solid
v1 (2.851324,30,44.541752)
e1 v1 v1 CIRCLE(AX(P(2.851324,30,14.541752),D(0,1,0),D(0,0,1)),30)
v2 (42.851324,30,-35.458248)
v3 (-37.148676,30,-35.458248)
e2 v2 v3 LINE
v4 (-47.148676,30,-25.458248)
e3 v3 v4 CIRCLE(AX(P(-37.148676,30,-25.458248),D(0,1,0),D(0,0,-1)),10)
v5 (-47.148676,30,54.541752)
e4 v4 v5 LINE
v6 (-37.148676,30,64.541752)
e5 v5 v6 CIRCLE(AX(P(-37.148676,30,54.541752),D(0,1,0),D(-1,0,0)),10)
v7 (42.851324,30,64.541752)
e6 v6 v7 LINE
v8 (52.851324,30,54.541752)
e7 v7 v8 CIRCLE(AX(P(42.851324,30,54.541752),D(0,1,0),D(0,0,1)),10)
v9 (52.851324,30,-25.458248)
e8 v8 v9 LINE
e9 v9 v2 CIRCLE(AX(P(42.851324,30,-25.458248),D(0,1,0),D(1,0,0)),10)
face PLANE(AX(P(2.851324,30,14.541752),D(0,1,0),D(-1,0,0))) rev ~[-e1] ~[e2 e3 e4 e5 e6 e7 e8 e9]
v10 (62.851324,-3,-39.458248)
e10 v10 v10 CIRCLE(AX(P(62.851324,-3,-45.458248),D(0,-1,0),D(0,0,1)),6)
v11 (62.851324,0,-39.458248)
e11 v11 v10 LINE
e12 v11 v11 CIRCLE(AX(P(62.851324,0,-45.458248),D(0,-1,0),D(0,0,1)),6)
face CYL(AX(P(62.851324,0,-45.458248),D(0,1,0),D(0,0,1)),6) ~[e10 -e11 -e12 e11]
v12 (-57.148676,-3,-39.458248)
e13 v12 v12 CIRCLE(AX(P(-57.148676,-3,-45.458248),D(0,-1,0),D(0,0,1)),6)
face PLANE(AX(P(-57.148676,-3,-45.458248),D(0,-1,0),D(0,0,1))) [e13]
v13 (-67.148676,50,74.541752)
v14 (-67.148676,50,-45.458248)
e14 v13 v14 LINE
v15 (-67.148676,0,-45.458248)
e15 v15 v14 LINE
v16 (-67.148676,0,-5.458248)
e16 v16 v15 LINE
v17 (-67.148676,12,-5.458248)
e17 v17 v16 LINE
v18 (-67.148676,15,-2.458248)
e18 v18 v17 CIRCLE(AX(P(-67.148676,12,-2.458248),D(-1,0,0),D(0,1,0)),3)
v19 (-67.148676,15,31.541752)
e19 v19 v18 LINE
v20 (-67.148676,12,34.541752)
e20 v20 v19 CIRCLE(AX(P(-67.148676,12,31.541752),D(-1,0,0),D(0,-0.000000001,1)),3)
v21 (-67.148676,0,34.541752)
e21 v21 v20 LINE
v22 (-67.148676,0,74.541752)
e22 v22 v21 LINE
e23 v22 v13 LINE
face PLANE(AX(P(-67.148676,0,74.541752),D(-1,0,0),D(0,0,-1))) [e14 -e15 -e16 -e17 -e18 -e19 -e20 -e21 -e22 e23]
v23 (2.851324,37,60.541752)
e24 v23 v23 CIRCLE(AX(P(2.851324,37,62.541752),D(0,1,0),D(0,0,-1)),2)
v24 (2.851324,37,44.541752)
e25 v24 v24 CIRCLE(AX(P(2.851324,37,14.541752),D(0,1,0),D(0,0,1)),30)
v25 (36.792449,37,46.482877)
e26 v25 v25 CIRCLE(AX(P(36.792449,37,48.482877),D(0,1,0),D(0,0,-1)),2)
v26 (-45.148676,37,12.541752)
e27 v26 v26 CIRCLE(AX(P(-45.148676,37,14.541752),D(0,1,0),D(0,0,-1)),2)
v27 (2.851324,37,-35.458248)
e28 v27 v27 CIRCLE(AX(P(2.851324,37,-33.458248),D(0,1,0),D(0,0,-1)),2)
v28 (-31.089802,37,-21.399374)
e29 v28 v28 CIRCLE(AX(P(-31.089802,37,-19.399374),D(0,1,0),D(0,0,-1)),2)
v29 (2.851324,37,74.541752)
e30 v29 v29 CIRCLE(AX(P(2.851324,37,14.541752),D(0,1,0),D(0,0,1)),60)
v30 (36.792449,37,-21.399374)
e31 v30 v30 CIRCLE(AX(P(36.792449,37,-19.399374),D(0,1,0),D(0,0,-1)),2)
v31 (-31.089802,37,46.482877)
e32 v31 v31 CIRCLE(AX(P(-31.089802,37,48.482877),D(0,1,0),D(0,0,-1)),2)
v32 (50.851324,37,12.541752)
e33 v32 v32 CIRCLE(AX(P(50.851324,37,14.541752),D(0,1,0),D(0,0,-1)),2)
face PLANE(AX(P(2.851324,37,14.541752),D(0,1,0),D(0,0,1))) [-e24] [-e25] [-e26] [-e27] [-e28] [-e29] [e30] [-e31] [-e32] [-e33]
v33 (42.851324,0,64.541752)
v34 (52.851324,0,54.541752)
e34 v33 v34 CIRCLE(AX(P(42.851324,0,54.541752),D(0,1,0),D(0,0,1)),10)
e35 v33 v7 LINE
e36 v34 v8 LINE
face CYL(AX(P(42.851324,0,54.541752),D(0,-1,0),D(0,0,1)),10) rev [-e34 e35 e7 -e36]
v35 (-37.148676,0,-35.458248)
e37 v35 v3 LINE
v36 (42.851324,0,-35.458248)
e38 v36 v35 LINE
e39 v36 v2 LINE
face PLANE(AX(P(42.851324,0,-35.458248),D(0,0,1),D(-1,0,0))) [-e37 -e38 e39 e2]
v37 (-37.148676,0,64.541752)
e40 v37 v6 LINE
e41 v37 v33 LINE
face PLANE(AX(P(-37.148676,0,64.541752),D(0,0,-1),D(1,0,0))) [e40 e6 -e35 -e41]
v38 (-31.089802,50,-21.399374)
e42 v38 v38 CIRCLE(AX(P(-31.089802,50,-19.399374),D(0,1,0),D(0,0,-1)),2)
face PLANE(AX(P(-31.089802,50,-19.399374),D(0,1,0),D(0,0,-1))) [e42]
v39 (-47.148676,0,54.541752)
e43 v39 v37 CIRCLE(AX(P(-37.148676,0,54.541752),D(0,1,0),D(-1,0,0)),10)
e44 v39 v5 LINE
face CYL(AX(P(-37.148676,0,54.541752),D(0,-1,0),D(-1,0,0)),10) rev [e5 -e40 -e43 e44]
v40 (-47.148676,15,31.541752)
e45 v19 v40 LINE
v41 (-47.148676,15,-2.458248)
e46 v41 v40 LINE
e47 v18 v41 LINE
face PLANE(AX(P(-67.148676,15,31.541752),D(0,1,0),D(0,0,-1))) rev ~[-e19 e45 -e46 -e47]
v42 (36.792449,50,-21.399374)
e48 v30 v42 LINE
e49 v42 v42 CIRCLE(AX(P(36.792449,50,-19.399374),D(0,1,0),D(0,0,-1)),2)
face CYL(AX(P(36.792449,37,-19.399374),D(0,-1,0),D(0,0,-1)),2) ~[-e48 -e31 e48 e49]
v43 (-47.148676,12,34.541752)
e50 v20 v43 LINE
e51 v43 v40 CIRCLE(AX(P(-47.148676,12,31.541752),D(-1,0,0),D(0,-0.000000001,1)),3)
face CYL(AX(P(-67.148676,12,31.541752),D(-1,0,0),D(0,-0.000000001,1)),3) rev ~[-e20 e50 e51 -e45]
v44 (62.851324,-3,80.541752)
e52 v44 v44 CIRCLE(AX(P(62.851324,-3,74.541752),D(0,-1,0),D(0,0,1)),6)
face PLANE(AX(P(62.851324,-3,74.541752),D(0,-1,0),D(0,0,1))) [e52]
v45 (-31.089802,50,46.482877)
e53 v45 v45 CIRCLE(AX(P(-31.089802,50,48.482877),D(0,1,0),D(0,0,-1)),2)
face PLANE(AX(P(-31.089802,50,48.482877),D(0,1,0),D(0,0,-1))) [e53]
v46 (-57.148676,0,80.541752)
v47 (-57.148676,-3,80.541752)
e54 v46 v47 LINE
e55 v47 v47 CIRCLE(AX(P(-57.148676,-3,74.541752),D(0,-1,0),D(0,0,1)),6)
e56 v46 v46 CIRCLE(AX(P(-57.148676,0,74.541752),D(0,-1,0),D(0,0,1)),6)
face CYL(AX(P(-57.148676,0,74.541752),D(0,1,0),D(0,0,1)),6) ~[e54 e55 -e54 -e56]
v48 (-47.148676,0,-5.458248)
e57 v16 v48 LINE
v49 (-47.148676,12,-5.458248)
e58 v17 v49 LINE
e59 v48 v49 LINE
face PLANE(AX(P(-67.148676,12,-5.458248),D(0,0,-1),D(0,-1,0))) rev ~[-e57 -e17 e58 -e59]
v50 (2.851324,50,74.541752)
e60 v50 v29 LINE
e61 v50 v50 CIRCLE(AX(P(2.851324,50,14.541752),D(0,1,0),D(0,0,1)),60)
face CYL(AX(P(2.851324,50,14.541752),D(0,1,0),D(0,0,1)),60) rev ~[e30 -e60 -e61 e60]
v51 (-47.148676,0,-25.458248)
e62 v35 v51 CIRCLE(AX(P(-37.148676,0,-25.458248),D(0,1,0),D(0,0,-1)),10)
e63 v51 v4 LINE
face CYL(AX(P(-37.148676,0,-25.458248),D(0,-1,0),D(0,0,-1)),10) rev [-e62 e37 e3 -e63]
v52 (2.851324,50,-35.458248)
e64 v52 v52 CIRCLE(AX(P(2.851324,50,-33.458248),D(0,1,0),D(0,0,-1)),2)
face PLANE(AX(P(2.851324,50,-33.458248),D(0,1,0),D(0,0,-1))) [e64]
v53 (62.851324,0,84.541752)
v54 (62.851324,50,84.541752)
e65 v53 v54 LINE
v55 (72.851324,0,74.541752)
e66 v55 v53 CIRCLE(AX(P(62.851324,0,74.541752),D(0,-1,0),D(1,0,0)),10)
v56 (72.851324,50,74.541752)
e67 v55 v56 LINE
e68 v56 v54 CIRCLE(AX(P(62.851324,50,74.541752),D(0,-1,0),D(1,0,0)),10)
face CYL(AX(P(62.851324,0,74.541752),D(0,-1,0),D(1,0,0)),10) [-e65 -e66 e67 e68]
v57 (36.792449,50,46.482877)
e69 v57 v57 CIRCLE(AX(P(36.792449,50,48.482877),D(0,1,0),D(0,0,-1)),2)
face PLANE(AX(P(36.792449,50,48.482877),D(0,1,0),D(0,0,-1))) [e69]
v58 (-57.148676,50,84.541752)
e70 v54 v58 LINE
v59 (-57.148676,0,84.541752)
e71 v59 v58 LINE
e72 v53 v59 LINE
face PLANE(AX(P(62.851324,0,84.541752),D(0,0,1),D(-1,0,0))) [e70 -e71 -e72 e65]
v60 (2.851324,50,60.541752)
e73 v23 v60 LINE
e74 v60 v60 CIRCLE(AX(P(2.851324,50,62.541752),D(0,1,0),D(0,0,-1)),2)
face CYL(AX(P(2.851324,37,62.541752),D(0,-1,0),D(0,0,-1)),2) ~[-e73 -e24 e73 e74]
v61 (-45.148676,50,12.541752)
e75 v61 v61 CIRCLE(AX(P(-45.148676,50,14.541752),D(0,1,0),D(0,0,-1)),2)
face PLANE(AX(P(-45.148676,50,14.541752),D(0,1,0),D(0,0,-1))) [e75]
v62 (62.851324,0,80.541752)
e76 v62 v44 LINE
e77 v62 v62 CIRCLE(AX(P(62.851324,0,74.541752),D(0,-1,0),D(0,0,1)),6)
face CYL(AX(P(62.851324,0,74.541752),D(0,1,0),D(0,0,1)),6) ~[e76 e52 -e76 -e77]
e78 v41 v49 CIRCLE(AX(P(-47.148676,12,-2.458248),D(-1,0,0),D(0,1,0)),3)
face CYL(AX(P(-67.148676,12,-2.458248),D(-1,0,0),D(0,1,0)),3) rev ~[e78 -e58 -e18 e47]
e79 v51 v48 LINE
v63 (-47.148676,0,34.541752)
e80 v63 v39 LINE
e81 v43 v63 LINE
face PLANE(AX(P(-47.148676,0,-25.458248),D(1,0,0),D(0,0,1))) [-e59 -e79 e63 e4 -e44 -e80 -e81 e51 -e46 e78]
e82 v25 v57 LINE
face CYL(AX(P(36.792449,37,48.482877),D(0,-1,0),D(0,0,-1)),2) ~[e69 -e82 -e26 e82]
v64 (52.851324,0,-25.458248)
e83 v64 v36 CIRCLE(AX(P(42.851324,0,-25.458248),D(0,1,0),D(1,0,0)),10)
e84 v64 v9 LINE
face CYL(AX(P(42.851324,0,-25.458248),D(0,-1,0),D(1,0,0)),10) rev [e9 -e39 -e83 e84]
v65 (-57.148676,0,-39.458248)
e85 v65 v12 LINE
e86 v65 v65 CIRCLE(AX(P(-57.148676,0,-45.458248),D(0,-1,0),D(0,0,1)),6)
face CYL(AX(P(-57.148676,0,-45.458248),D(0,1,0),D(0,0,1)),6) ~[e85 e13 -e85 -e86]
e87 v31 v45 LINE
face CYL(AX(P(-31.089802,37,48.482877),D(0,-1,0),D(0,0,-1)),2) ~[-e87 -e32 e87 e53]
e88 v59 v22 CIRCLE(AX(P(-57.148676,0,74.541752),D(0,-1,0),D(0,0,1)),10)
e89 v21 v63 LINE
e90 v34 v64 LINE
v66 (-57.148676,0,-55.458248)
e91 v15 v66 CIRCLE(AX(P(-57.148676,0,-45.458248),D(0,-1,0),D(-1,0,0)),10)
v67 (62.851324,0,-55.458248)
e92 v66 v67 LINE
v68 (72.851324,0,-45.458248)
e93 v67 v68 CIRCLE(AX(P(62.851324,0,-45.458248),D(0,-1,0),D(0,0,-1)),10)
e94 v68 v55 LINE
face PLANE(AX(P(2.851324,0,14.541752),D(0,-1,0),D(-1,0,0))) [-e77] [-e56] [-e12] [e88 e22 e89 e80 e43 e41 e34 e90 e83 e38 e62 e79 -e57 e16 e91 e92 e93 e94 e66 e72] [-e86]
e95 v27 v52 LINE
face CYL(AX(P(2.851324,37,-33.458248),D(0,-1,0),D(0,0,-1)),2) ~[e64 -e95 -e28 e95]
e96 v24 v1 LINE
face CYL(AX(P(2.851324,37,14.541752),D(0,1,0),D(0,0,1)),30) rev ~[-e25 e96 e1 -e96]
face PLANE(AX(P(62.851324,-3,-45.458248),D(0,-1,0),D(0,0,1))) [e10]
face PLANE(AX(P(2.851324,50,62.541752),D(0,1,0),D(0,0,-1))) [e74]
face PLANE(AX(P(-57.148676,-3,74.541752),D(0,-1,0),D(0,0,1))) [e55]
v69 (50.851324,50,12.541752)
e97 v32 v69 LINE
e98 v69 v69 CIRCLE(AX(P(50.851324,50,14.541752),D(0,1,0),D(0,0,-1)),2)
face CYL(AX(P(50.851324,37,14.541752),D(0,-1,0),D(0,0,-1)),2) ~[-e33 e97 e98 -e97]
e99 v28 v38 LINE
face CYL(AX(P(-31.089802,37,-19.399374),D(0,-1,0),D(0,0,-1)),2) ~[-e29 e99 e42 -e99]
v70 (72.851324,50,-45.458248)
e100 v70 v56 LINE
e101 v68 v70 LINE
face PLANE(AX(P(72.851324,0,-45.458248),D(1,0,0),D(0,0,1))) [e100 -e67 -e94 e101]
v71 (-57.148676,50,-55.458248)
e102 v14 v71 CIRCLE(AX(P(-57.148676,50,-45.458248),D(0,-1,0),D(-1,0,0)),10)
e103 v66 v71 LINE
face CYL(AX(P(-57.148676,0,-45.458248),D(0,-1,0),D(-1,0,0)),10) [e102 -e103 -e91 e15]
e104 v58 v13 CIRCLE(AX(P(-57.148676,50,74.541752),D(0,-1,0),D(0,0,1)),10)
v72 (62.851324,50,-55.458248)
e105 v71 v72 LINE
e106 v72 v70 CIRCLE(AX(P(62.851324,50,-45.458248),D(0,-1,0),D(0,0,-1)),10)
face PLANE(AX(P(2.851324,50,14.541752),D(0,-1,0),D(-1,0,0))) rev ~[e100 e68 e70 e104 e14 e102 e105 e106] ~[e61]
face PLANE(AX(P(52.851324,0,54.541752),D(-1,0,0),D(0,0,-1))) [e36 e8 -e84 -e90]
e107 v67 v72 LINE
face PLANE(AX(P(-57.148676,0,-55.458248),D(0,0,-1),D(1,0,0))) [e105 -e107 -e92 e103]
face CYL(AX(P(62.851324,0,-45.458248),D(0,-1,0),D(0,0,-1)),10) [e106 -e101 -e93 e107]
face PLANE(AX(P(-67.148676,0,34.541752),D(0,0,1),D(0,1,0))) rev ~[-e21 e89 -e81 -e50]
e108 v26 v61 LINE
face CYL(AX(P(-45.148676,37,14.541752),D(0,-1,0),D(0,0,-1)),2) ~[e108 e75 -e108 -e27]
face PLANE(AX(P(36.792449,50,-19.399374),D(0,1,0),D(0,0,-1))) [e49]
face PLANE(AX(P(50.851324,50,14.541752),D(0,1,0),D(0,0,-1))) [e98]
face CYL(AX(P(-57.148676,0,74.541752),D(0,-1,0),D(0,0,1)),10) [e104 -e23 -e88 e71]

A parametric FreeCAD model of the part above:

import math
import FreeCAD as App
import Part
import Sketcher

doc = App.newDocument("Part")
body = doc.addObject("PartDesign::Body", "Body")

# Sketch on XZ plane
sketch1 = body.newObject("Sketcher::SketchObject", "Sketch")
sketch1.AttachmentSupport = (doc.getObject("XZ_Plane"), [""])
sketch1.MapMode = "FlatFace"
sketch1.addGeometry([
    Part.LineSegment(App.Vector(62.851324, -55.458248, 0), App.Vector(-57.148676, -55.458248, 0)),  # 0
    Part.ArcOfCircle(Part.Circle(App.Vector(-57.148676, -45.458248, 0), App.Vector(0, 0, 1), 10), math.radians(-180), math.radians(-90)),  # 1
    Part.LineSegment(App.Vector(-67.148676, -45.458248, 0), App.Vector(-67.148676, 74.541752, 0)),  # 2
    Part.ArcOfCircle(Part.Circle(App.Vector(-57.148676, 74.541752, 0), App.Vector(0, 0, 1), 10), math.radians(90), math.radians(180)),  # 3
    Part.LineSegment(App.Vector(-57.148676, 84.541752, 0), App.Vector(62.851324, 84.541752, 0)),  # 4
    Part.ArcOfCircle(Part.Circle(App.Vector(62.851324, 74.541752, 0), App.Vector(0, 0, 1), 10), math.radians(0), math.radians(90)),  # 5
    Part.LineSegment(App.Vector(72.851324, 74.541752, 0), App.Vector(72.851324, -45.458248, 0)),  # 6
    Part.ArcOfCircle(Part.Circle(App.Vector(62.851324, -45.458248, 0), App.Vector(0, 0, 1), 10), math.radians(-90), math.radians(0)),  # 7
], False)
sketch1.addConstraint([
    Sketcher.Constraint("Tangent", 0, 2, 1, 2),
    Sketcher.Constraint("Tangent", 1, 1, 2, 1),
    Sketcher.Constraint("Tangent", 2, 2, 3, 2),
    Sketcher.Constraint("Tangent", 3, 1, 4, 1),
    Sketcher.Constraint("Tangent", 4, 2, 5, 2),
    Sketcher.Constraint("Tangent", 5, 1, 6, 1),
    Sketcher.Constraint("Tangent", 6, 2, 7, 2),
    Sketcher.Constraint("Tangent", 7, 1, 0, 1),
    Sketcher.Constraint("Horizontal", 0),
    Sketcher.Constraint("Vertical", 2),
    Sketcher.Constraint("Horizontal", 4),
    Sketcher.Constraint("Vertical", 6),
    Sketcher.Constraint("Equal", 1, 3),
    Sketcher.Constraint("Equal", 3, 5),
    Sketcher.Constraint("Equal", 5, 7),
    Sketcher.Constraint("Equal", 4, 2),
    Sketcher.Constraint("Radius", 1, 10.0),
    Sketcher.Constraint("DistanceX", 0, 2, 0, 1, 120.0),
    Sketcher.Constraint("DistanceY", 1, 3, -1, 1, 45.458248),
    Sketcher.Constraint("DistanceX", 1, 3, -1, 1, 57.148676),
])
pad1 = body.newObject("PartDesign::Pad", "Pad")
pad1.Profile = sketch1
pad1.Length = 50
pad1.Reversed = True

# Sketch on XZ plane
sketch2 = body.newObject("Sketcher::SketchObject", "Sketch001")
sketch2.AttachmentSupport = (doc.getObject("XZ_Plane"), [""])
sketch2.MapMode = "FlatFace"
sketch2.AttachmentOffset = App.Placement(App.Vector(0, 0, -50), App.Rotation())
sketch2.addGeometry(Part.Circle(App.Vector(2.851324, 14.541752, 0), App.Vector(0, 0, 1), 60), False)
sketch2.addConstraint([
    Sketcher.Constraint("Diameter", 0, 120.0),
    Sketcher.Constraint("DistanceY", -1, 1, 0, 3, 14.541752),
    Sketcher.Constraint("DistanceX", -1, 1, 0, 3, 2.851324),
])
pocket1 = body.newObject("PartDesign::Pocket", "Pocket")
pocket1.Profile = sketch2
pocket1.Length = 13
pocket1.Reversed = True

# Sketch on XZ plane
sketch3 = body.newObject("Sketcher::SketchObject", "Sketch002")
sketch3.AttachmentSupport = (doc.getObject("XZ_Plane"), [""])
sketch3.MapMode = "FlatFace"
sketch3.AttachmentOffset = App.Placement(App.Vector(0, 0, -37), App.Rotation())
sketch3.addGeometry(Part.Circle(App.Vector(2.851324, 14.541752, 0), App.Vector(0, 0, 1), 10), False)
sketch3.addConstraint([
    Sketcher.Constraint("Diameter", 0, 20.0),
    Sketcher.Constraint("DistanceY", -1, 1, 0, 3, 14.541752),
    Sketcher.Constraint("DistanceX", -1, 1, 0, 3, 2.851324),
])
pocket2 = body.newObject("PartDesign::Pocket", "Pocket001")
pocket2.Profile = sketch3
pocket2.Length = 50
pocket2.Reversed = True

# Sketch on XZ plane
sketch4 = body.newObject("Sketcher::SketchObject", "Sketch003")
sketch4.AttachmentSupport = (doc.getObject("XZ_Plane"), [""])
sketch4.MapMode = "FlatFace"
sketch4.AttachmentOffset = App.Placement(App.Vector(0, 0, -37), App.Rotation())
sketch4.addGeometry([
    Part.Circle(App.Vector(2.851324, -33.458248, 0), App.Vector(0, 0, 1), 2),  # 0
    Part.Circle(App.Vector(36.792449, -19.399374, 0), App.Vector(0, 0, 1), 2),  # 1
    Part.Circle(App.Vector(50.851324, 14.541752, 0), App.Vector(0, 0, 1), 2),  # 2
    Part.Circle(App.Vector(36.792449, 48.482877, 0), App.Vector(0, 0, 1), 2),  # 3
    Part.Circle(App.Vector(2.851324, 62.541752, 0), App.Vector(0, 0, 1), 2),  # 4
    Part.Circle(App.Vector(-31.089802, 48.482877, 0), App.Vector(0, 0, 1), 2),  # 5
    Part.Circle(App.Vector(-45.148676, 14.541752, 0), App.Vector(0, 0, 1), 2),  # 6
    Part.Circle(App.Vector(-31.089802, -19.399374, 0), App.Vector(0, 0, 1), 2),  # 7
], False)
sketch4.addConstraint([
    Sketcher.Constraint("Equal", 0, 1),
    Sketcher.Constraint("Equal", 1, 2),
    Sketcher.Constraint("Equal", 2, 3),
    Sketcher.Constraint("Equal", 3, 4),
    Sketcher.Constraint("Equal", 4, 5),
    Sketcher.Constraint("Equal", 5, 6),
    Sketcher.Constraint("Equal", 6, 7),
    Sketcher.Constraint("Horizontal", 3, 3, 5, 3),
    Sketcher.Constraint("Horizontal", 2, 3, 6, 3),
    Sketcher.Constraint("Horizontal", 1, 3, 7, 3),
    Sketcher.Constraint("Vertical", 1, 3, 3, 3),
    Sketcher.Constraint("Vertical", 0, 3, 4, 3),
    Sketcher.Constraint("Vertical", 5, 3, 7, 3),
    Sketcher.Constraint("Diameter", 0, 4.0),
    Sketcher.Constraint("DistanceX", 0, 3, 2, 3, 48.0),
    Sketcher.Constraint("DistanceY", 0, 3, 2, 3, 48.0),
    Sketcher.Constraint("DistanceY", 2, 3, 4, 3, 48.0),
    Sketcher.Constraint("DistanceX", 6, 3, 0, 3, 48.0),
    Sketcher.Constraint("DistanceX", 5, 3, -1, 1, 31.089802),
    Sketcher.Constraint("DistanceY", 0, 3, -1, 1, 33.458248),
    Sketcher.Constraint("DistanceX", -1, 1, 1, 3, 36.792449),
    Sketcher.Constraint("DistanceY", 1, 3, 3, 3, 67.882251),
    Sketcher.Constraint("DistanceX", -1, 1, 0, 3, 2.851324),
    Sketcher.Constraint("DistanceY", 1, 3, -1, 1, 19.399374),
])
pad2 = body.newObject("PartDesign::Pad", "Pad001")
pad2.Profile = sketch4
pad2.Length = 13
pad2.Reversed = True

# Sketch on XZ plane
sketch5 = body.newObject("Sketcher::SketchObject", "Sketch004")
sketch5.AttachmentSupport = (doc.getObject("XZ_Plane"), [""])
sketch5.MapMode = "FlatFace"
sketch5.addGeometry([
    Part.LineSegment(App.Vector(42.851324, 64.541752, 0), App.Vector(-37.148676, 64.541752, 0)),  # 0
    Part.ArcOfCircle(Part.Circle(App.Vector(-37.148676, 54.541752, 0), App.Vector(0, 0, 1), 10), math.radians(90), math.radians(180)),  # 1
    Part.LineSegment(App.Vector(-47.148676, 54.541752, 0), App.Vector(-47.148676, -25.458248, 0)),  # 2
    Part.ArcOfCircle(Part.Circle(App.Vector(-37.148676, -25.458248, 0), App.Vector(0, 0, 1), 10), math.radians(-180), math.radians(-90)),  # 3
    Part.LineSegment(App.Vector(-37.148676, -35.458248, 0), App.Vector(42.851324, -35.458248, 0)),  # 4
    Part.ArcOfCircle(Part.Circle(App.Vector(42.851324, -25.458248, 0), App.Vector(0, 0, 1), 10), math.radians(-90), math.radians(0)),  # 5
    Part.LineSegment(App.Vector(52.851324, -25.458248, 0), App.Vector(52.851324, 54.541752, 0)),  # 6
    Part.ArcOfCircle(Part.Circle(App.Vector(42.851324, 54.541752, 0), App.Vector(0, 0, 1), 10), math.radians(0), math.radians(90)),  # 7
], False)
sketch5.addConstraint([
    Sketcher.Constraint("Tangent", 0, 2, 1, 1),
    Sketcher.Constraint("Tangent", 1, 2, 2, 1),
    Sketcher.Constraint("Tangent", 2, 2, 3, 1),
    Sketcher.Constraint("Tangent", 3, 2, 4, 1),
    Sketcher.Constraint("Tangent", 4, 2, 5, 1),
    Sketcher.Constraint("Tangent", 5, 2, 6, 1),
    Sketcher.Constraint("Tangent", 6, 2, 7, 1),
    Sketcher.Constraint("Tangent", 7, 2, 0, 1),
    Sketcher.Constraint("Horizontal", 0),
    Sketcher.Constraint("Vertical", 2),
    Sketcher.Constraint("Horizontal", 4),
    Sketcher.Constraint("Vertical", 6),
    Sketcher.Constraint("Equal", 1, 3),
    Sketcher.Constraint("Equal", 3, 5),
    Sketcher.Constraint("Equal", 5, 7),
    Sketcher.Constraint("Equal", 4, 2),
    Sketcher.Constraint("Radius", 1, 10.0),
    Sketcher.Constraint("DistanceX", 0, 2, 0, 1, 80.0),
    Sketcher.Constraint("DistanceY", -1, 1, 1, 3, 54.541752),
    Sketcher.Constraint("DistanceX", 1, 3, -1, 1, 37.148676),
])
pocket3 = body.newObject("PartDesign::Pocket", "Pocket002")
pocket3.Profile = sketch5
pocket3.Length = 30

# Sketch on XZ plane
sketch6 = body.newObject("Sketcher::SketchObject", "Sketch005")
sketch6.AttachmentSupport = (doc.getObject("XZ_Plane"), [""])
sketch6.MapMode = "FlatFace"
sketch6.addGeometry([
    Part.Circle(App.Vector(-57.148676, 74.541752, 0), App.Vector(0, 0, 1), 6),
    Part.Circle(App.Vector(62.851324, 74.541752, 0), App.Vector(0, 0, 1), 6),
    Part.Circle(App.Vector(62.851324, -45.458248, 0), App.Vector(0, 0, 1), 6),
    Part.Circle(App.Vector(-57.148676, -45.458248, 0), App.Vector(0, 0, 1), 6),
], False)
sketch6.addConstraint([
    Sketcher.Constraint("Equal", 0, 1),
    Sketcher.Constraint("Equal", 1, 2),
    Sketcher.Constraint("Equal", 2, 3),
    Sketcher.Constraint("Horizontal", 0, 3, 1, 3),
    Sketcher.Constraint("Horizontal", 2, 3, 3, 3),
    Sketcher.Constraint("Vertical", 1, 3, 2, 3),
    Sketcher.Constraint("Vertical", 0, 3, 3, 3),
    Sketcher.Constraint("Diameter", 0, 12.0),
    Sketcher.Constraint("DistanceX", 0, 3, 1, 3, 120.0),
    Sketcher.Constraint("DistanceY", 2, 3, 1, 3, 120.0),
    Sketcher.Constraint("DistanceY", -1, 1, 0, 3, 74.541752),
    Sketcher.Constraint("DistanceX", 0, 3, -1, 1, 57.148676),
])
pad3 = body.newObject("PartDesign::Pad", "Pad002")
pad3.Profile = sketch6
pad3.Length = 3

# Sketch on XZ plane
sketch7 = body.newObject("Sketcher::SketchObject", "Sketch006")
sketch7.AttachmentSupport = (doc.getObject("XZ_Plane"), [""])
sketch7.MapMode = "FlatFace"
sketch7.AttachmentOffset = App.Placement(App.Vector(0, 0, -37), App.Rotation())
sketch7.addGeometry(Part.Circle(App.Vector(2.851324, 14.541752, 0), App.Vector(0, 0, 1), 30), False)
sketch7.addConstraint([
    Sketcher.Constraint("Diameter", 0, 60.0),
    Sketcher.Constraint("DistanceY", -1, 1, 0, 3, 14.541752),
    Sketcher.Constraint("DistanceX", -1, 1, 0, 3, 2.851324),
])
pocket4 = body.newObject("PartDesign::Pocket", "Pocket003")
pocket4.Profile = sketch7
pocket4.Length = 40
pocket4.Reversed = True

# Sketch on YZ plane
sketch8 = body.newObject("Sketcher::SketchObject", "Sketch007")
sketch8.AttachmentSupport = (doc.getObject("YZ_Plane"), [""])
sketch8.MapMode = "FlatFace"
sketch8.AttachmentOffset = App.Placement(App.Vector(0, 0, -67.148676), App.Rotation())
sketch8.addGeometry([
    Part.LineSegment(App.Vector(0, -5.458248, 0), App.Vector(0, 34.541752, 0)),  # 0
    Part.LineSegment(App.Vector(0, 34.541752, 0), App.Vector(12, 34.541752, 0)),  # 1
    Part.ArcOfCircle(Part.Circle(App.Vector(12, 31.541752, 0), App.Vector(0, 0, 1), 3), math.radians(0), math.radians(90)),  # 2
    Part.LineSegment(App.Vector(15, 31.541752, 0), App.Vector(15, -2.458248, 0)),  # 3
    Part.ArcOfCircle(Part.Circle(App.Vector(12, -2.458248, 0), App.Vector(0, 0, 1), 3), math.radians(-90), math.radians(0)),  # 4
    Part.LineSegment(App.Vector(12, -5.458248, 0), App.Vector(0, -5.458248, 0)),  # 5
], False)
sketch8.addConstraint([
    Sketcher.Constraint("Coincident", 0, 2, 1, 1),
    Sketcher.Constraint("Tangent", 1, 2, 2, 2),
    Sketcher.Constraint("Tangent", 2, 1, 3, 1),
    Sketcher.Constraint("Tangent", 3, 2, 4, 2),
    Sketcher.Constraint("Tangent", 4, 1, 5, 1),
    Sketcher.Constraint("Coincident", 5, 2, 0, 1),
    Sketcher.Constraint("Vertical", 0),
    Sketcher.Constraint("Horizontal", 1),
    Sketcher.Constraint("Vertical", 3),
    Sketcher.Constraint("Horizontal", 5),
    Sketcher.Constraint("Equal", 2, 4),
    Sketcher.Constraint("PointOnObject", 0, 2, -2),
    Sketcher.Constraint("Radius", 2, 3.0),
    Sketcher.Constraint("DistanceX", 1, 1, 1, 2, 12.0),
    Sketcher.Constraint("DistanceY", 0, 1, 0, 2, 40.0),
    Sketcher.Constraint("DistanceY", -1, 1, 2, 3, 31.541752),
])
pocket5 = body.newObject("PartDesign::Pocket", "Pocket004")
pocket5.Profile = sketch8
pocket5.Length = 25
pocket5.Reversed = True

doc.recompute()
